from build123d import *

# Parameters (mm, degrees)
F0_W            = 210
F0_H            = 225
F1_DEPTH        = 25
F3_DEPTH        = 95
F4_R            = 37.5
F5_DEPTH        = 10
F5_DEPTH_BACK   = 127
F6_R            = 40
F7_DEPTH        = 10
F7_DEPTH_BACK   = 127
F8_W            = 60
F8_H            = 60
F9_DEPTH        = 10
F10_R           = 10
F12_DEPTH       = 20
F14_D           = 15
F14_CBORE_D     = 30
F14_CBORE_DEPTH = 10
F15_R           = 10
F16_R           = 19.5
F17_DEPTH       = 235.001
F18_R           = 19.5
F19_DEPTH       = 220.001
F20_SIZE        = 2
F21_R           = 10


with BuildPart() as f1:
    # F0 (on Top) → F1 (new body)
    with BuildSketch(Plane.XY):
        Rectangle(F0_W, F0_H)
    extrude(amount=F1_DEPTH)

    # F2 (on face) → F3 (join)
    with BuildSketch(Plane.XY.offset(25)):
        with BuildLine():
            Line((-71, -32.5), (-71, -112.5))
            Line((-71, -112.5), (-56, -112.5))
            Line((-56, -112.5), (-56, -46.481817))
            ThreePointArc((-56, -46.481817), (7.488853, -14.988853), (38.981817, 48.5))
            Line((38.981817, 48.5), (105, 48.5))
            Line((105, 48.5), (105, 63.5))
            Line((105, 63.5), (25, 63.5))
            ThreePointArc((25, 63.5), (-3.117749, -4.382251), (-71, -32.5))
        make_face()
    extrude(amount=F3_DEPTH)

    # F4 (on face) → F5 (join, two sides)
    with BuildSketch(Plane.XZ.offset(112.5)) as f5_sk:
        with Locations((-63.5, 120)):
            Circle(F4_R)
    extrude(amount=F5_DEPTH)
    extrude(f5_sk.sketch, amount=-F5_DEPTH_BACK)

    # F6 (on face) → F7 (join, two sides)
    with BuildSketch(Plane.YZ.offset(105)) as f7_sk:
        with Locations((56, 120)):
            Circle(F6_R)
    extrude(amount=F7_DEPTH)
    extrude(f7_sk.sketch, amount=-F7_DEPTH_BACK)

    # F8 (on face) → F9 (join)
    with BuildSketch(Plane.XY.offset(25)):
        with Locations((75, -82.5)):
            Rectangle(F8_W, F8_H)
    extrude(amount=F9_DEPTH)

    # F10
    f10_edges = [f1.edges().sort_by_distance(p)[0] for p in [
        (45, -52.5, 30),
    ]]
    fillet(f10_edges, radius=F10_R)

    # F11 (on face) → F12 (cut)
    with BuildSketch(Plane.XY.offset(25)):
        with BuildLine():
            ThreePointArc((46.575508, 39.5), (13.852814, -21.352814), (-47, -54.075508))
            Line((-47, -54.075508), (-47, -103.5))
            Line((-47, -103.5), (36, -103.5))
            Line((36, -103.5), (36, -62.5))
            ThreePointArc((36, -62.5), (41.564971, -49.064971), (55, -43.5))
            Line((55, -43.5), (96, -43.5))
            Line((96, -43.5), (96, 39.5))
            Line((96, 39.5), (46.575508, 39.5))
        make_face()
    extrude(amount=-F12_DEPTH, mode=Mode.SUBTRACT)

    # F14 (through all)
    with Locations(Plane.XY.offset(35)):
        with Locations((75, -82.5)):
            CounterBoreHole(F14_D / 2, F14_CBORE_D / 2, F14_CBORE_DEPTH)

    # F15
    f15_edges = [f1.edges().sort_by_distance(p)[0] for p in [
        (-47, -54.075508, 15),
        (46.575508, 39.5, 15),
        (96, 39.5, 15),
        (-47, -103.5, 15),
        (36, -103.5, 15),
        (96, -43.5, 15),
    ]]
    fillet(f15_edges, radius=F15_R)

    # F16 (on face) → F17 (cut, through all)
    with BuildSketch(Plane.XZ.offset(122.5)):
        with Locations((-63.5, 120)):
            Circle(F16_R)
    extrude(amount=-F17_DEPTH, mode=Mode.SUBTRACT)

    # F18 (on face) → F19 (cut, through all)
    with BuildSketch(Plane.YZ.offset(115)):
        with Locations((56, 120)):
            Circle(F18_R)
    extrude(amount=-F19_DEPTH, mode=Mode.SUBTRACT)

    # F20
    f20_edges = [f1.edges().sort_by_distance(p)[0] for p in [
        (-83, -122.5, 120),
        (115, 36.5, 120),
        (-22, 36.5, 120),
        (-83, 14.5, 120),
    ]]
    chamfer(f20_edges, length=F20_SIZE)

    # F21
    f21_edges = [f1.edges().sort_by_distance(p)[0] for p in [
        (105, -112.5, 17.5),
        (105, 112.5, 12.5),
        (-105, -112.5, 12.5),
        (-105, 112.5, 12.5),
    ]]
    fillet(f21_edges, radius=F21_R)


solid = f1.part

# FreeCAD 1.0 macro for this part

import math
import FreeCAD as App
import Part
import Sketcher
Q = App.Units.Quantity


def edges_at(feature, points):
    """Names of the edges that pass closest to the given points."""
    edges = feature.Shape.Edges
    near = lambda p: min(range(len(edges)), key=lambda i: edges[i].distToShape(Part.Vertex(*p))[0])
    return sorted({f"Edge{near(p) + 1}" for p in points})

doc = App.newDocument("Part")
body = doc.addObject("PartDesign::Body", "Body")

sketch1 = body.newObject("Sketcher::SketchObject", "Sketch")
sketch1.AttachmentSupport = (doc.getObject("XY_Plane"), [""])
sketch1.MapMode = "FlatFace"
sketch1.addGeometry([
    Part.LineSegment(App.Vector(-105, 112, 0), App.Vector(-105, -112, 0)),
    Part.LineSegment(App.Vector(-105, -112, 0), App.Vector(105, -112, 0)),
    Part.LineSegment(App.Vector(105, -112, 0), App.Vector(105, 112, 0)),
    Part.LineSegment(App.Vector(105, 112, 0), App.Vector(-105, 112, 0)),
], False)
sketch1.addConstraint([
    Sketcher.Constraint("Coincident", 0, 2, 1, 1),
    Sketcher.Constraint("Coincident", 1, 2, 2, 1),
    Sketcher.Constraint("Coincident", 2, 2, 3, 1),
    Sketcher.Constraint("Coincident", 3, 2, 0, 1),
    Sketcher.Constraint("Vertical", 0),
    Sketcher.Constraint("Horizontal", 1),
    Sketcher.Constraint("Vertical", 2),
    Sketcher.Constraint("Horizontal", 3),
    Sketcher.Constraint("Symmetric", 0, 2, 2, 2, -1, 1),
    Sketcher.Constraint("DistanceX", 1, 1, 1, 2, Q("210 mm")),
    Sketcher.Constraint("DistanceY", 0, 2, 0, 1, Q("225 mm")),
])
pad1 = body.newObject("PartDesign::Pad", "Pad")
pad1.Profile = sketch1
pad1.Length = 25

sketch2 = body.newObject("Sketcher::SketchObject", "Sketch001")
sketch2.AttachmentSupport = (doc.getObject("XY_Plane"), [""])
sketch2.MapMode = "FlatFace"
sketch2.AttachmentOffset = App.Placement(App.Vector(0, 0, 25), App.Rotation())
sketch2.addGeometry([
    Part.LineSegment(App.Vector(-71, -32, 0), App.Vector(-71, -112, 0)),
    Part.LineSegment(App.Vector(-71, -112, 0), App.Vector(-56, -112, 0)),
    Part.LineSegment(App.Vector(-56, -112, 0), App.Vector(-56, -46, 0)),
    Part.ArcOfCircle(Part.Circle(App.Vector(-71, 63, 0), App.Vector(0, 0, 1), 111), math.radians(-82), math.radians(-8)),
    Part.LineSegment(App.Vector(39, 48, 0), App.Vector(105, 48, 0)),
    Part.LineSegment(App.Vector(105, 48, 0), App.Vector(105, 64, 0)),
    Part.LineSegment(App.Vector(105, 64, 0), App.Vector(25, 64, 0)),
    Part.ArcOfCircle(Part.Circle(App.Vector(-71, 63, 0), App.Vector(0, 0, 1), 96), math.radians(-90), math.radians(0)),
], False)
sketch2.addConstraint([
    Sketcher.Constraint("Coincident", 0, 2, 1, 1),
    Sketcher.Constraint("Coincident", 1, 2, 2, 1),
    Sketcher.Constraint("Coincident", 2, 2, 3, 1),
    Sketcher.Constraint("Coincident", 3, 2, 4, 1),
    Sketcher.Constraint("Coincident", 4, 2, 5, 1),
    Sketcher.Constraint("Coincident", 5, 2, 6, 1),
    Sketcher.Constraint("Coincident", 6, 2, 7, 2),
    Sketcher.Constraint("Coincident", 7, 1, 0, 1),
    Sketcher.Constraint("Vertical", 0),
    Sketcher.Constraint("Horizontal", 1),
    Sketcher.Constraint("Vertical", 2),
    Sketcher.Constraint("Horizontal", 4),
    Sketcher.Constraint("Vertical", 5),
    Sketcher.Constraint("Horizontal", 6),
    Sketcher.Constraint("Coincident", 7, 3, 3, 3),
    Sketcher.Constraint("Horizontal", 7, 3, 5, 2),
    Sketcher.Constraint("Vertical", 7, 3, 0, 2),
    Sketcher.Constraint("Equal", 6, 0),
    Sketcher.Constraint("Equal", 4, 2),
    Sketcher.Constraint("Radius", 3, Q("111 mm")),
    Sketcher.Constraint("Radius", 7, Q("96 mm")),
    Sketcher.Constraint("DistanceX", 1, 1, 1, 2, Q("15 mm")),
    Sketcher.Constraint("DistanceX", 6, 2, 6, 1, Q("80 mm")),
    Sketcher.Constraint("DistanceX", 3, 3, -1, 1, Q("71 mm")),
    Sketcher.Constraint("DistanceY", -1, 1, 3, 3, Q("63.5 mm")),
])
pad2 = body.newObject("PartDesign::Pad", "Pad001")
pad2.Profile = sketch2
pad2.Length = 95

sketch3 = body.newObject("Sketcher::SketchObject", "Sketch002")
sketch3.AttachmentSupport = (doc.getObject("XZ_Plane"), [""])
sketch3.MapMode = "FlatFace"
sketch3.AttachmentOffset = App.Placement(App.Vector(0, 0, 112.5), App.Rotation())
sketch3.addGeometry(Part.Circle(App.Vector(-64, 120, 0), App.Vector(0, 0, 1), 38), False)
sketch3.addConstraint([
    Sketcher.Constraint("Diameter", 0, Q("75 mm")),
    Sketcher.Constraint("DistanceY", -1, 1, 0, 3, Q("120 mm")),
    Sketcher.Constraint("DistanceX", 0, 3, -1, 1, Q("63.5 mm")),
])
pad3 = body.newObject("PartDesign::Pad", "Pad002")
pad3.Profile = sketch3
pad3.Type = "TwoLengths"
pad3.Length = 10
pad3.Length2 = 127

sketch4 = body.newObject("Sketcher::SketchObject", "Sketch003")
sketch4.AttachmentSupport = (doc.getObject("YZ_Plane"), [""])
sketch4.MapMode = "FlatFace"
sketch4.AttachmentOffset = App.Placement(App.Vector(0, 0, 105), App.Rotation())
sketch4.addGeometry(Part.Circle(App.Vector(56, 120, 0), App.Vector(0, 0, 1), 40), False)
sketch4.addConstraint([
    Sketcher.Constraint("Diameter", 0, Q("80 mm")),
    Sketcher.Constraint("DistanceX", -1, 1, 0, 3, Q("56 mm")),
    Sketcher.Constraint("DistanceY", -1, 1, 0, 3, Q("120 mm")),
])
pad4 = body.newObject("PartDesign::Pad", "Pad003")
pad4.Profile = sketch4
pad4.Type = "TwoLengths"
pad4.Length = 10
pad4.Length2 = 127

sketch5 = body.newObject("Sketcher::SketchObject", "Sketch004")
sketch5.AttachmentSupport = (doc.getObject("XY_Plane"), [""])
sketch5.MapMode = "FlatFace"
sketch5.AttachmentOffset = App.Placement(App.Vector(0, 0, 25), App.Rotation())
sketch5.addGeometry([
    Part.LineSegment(App.Vector(45, -52, 0), App.Vector(45, -112, 0)),
    Part.LineSegment(App.Vector(45, -112, 0), App.Vector(105, -112, 0)),
    Part.LineSegment(App.Vector(105, -112, 0), App.Vector(105, -52, 0)),
    Part.LineSegment(App.Vector(105, -52, 0), App.Vector(45, -52, 0)),
], False)
sketch5.addConstraint([
    Sketcher.Constraint("Coincident", 0, 2, 1, 1),
    Sketcher.Constraint("Coincident", 1, 2, 2, 1),
    Sketcher.Constraint("Coincident", 2, 2, 3, 1),
    Sketcher.Constraint("Coincident", 3, 2, 0, 1),
    Sketcher.Constraint("Vertical", 0),
    Sketcher.Constraint("Horizontal", 1),
    Sketcher.Constraint("Vertical", 2),
    Sketcher.Constraint("Horizontal", 3),
    Sketcher.Constraint("Equal", 3, 0),
    Sketcher.Constraint("DistanceX", 1, 1, 1, 2, Q("60 mm")),
    Sketcher.Constraint("DistanceX", -1, 1, 0, 2, Q("45 mm")),
    Sketcher.Constraint("DistanceY", 0, 2, -1, 1, Q("112.5 mm")),
])
pad5 = body.newObject("PartDesign::Pad", "Pad004")
pad5.Profile = sketch5
pad5.Length = 10
doc.recompute()

fillet = body.newObject("PartDesign::Fillet", "Fillet")
fillet.Base = (pad5, edges_at(pad5, [(45, -52.5, 30)]))
fillet.Radius = 10

sketch6 = body.newObject("Sketcher::SketchObject", "Sketch005")
sketch6.AttachmentSupport = (doc.getObject("XY_Plane"), [""])
sketch6.MapMode = "FlatFace"
sketch6.AttachmentOffset = App.Placement(App.Vector(0, 0, 25), App.Rotation())
sketch6.addGeometry([
    Part.ArcOfCircle(Part.Circle(App.Vector(-71, 63, 0), App.Vector(0, 0, 1), 120), math.radians(-78), math.radians(-12)),
    Part.LineSegment(App.Vector(-47, -54, 0), App.Vector(-47, -104, 0)),
    Part.LineSegment(App.Vector(-47, -104, 0), App.Vector(36, -104, 0)),
    Part.LineSegment(App.Vector(36, -104, 0), App.Vector(36, -62, 0)),
    Part.ArcOfCircle(Part.Circle(App.Vector(55, -62, 0), App.Vector(0, 0, 1), 19), math.radians(90), math.radians(180)),
    Part.LineSegment(App.Vector(55, -44, 0), App.Vector(96, -44, 0)),
    Part.LineSegment(App.Vector(96, -44, 0), App.Vector(96, 40, 0)),
    Part.LineSegment(App.Vector(96, 40, 0), App.Vector(47, 40, 0)),
], False)
sketch6.addConstraint([
    Sketcher.Constraint("Coincident", 0, 1, 1, 1),
    Sketcher.Constraint("Coincident", 1, 2, 2, 1),
    Sketcher.Constraint("Coincident", 2, 2, 3, 1),
    Sketcher.Constraint("Tangent", 3, 2, 4, 2),
    Sketcher.Constraint("Tangent", 4, 1, 5, 1),
    Sketcher.Constraint("Coincident", 5, 2, 6, 1),
    Sketcher.Constraint("Coincident", 6, 2, 7, 1),
    Sketcher.Constraint("Coincident", 7, 2, 0, 2),
    Sketcher.Constraint("Vertical", 1),
    Sketcher.Constraint("Horizontal", 2),
    Sketcher.Constraint("Vertical", 3),
    Sketcher.Constraint("Horizontal", 5),
    Sketcher.Constraint("Vertical", 6),
    Sketcher.Constraint("Horizontal", 7),
    Sketcher.Constraint("Equal", 7, 1),
    Sketcher.Constraint("Equal", 5, 3),
    Sketcher.Constraint("Equal", 2, 6),
    Sketcher.Constraint("Radius", 0, Q("120 mm")),
    Sketcher.Constraint("Radius", 4, Q("18.999999 mm")),
    Sketcher.Constraint("DistanceX", 2, 1, 2, 2, Q("83 mm")),
    Sketcher.Constraint("DistanceX", 5, 1, 5, 2, Q("41 mm")),
    Sketcher.Constraint("DistanceX", 0, 3, -1, 1, Q("71 mm")),
    Sketcher.Constraint("DistanceX", -1, 1, 4, 3, Q("54.999999 mm")),
    Sketcher.Constraint("DistanceY", -1, 1, 0, 3, Q("63.5 mm")),
])
pocket1 = body.newObject("PartDesign::Pocket", "Pocket")
pocket1.Profile = sketch6
pocket1.Length = 20

sketch7 = body.newObject("Sketcher::SketchObject", "Sketch006")
sketch7.AttachmentSupport = (doc.getObject("XY_Plane"), [""])
sketch7.MapMode = "FlatFace"
sketch7.AttachmentOffset = App.Placement(App.Vector(0, 0, 35), App.Rotation())
sketch7.addGeometry(Part.Circle(App.Vector(75, -82, 0), App.Vector(0, 0, 1), 8), False)
sketch7.addConstraint([
    Sketcher.Constraint("Diameter", 0, Q("15 mm")),
    Sketcher.Constraint("DistanceX", -1, 1, 0, 3, Q("75 mm")),
    Sketcher.Constraint("DistanceY", 0, 3, -1, 1, Q("82.5 mm")),
])
doc.recompute()
hole = body.newObject("PartDesign::Hole", "Hole")
hole.Profile = sketch7
hole.ThreadType = "None"
hole.Diameter = 15
hole.DepthType = "ThroughAll"
hole.HoleCutType = "Counterbore"
hole.HoleCutDiameter = 30
hole.HoleCutDepth = 10
doc.recompute()

fillet2 = body.newObject("PartDesign::Fillet", "Fillet001")
fillet2.Base = (hole, edges_at(hole, [
    (-47, -54.076, 15),
    (46.576, 39.5, 15),
    (96, 39.5, 15),
    (-47, -103.5, 15),
    (36, -103.5, 15),
    (96, -43.5, 15),
]))
fillet2.Radius = 10

sketch8 = body.newObject("Sketcher::SketchObject", "Sketch007")
sketch8.AttachmentSupport = (doc.getObject("XZ_Plane"), [""])
sketch8.MapMode = "FlatFace"
sketch8.AttachmentOffset = App.Placement(App.Vector(0, 0, 122.5), App.Rotation())
sketch8.addGeometry(Part.Circle(App.Vector(-64, 120, 0), App.Vector(0, 0, 1), 20), False)
sketch8.addConstraint([
    Sketcher.Constraint("Diameter", 0, Q("39 mm")),
    Sketcher.Constraint("DistanceY", -1, 1, 0, 3, Q("120 mm")),
    Sketcher.Constraint("DistanceX", 0, 3, -1, 1, Q("63.5 mm")),
])
pocket2 = body.newObject("PartDesign::Pocket", "Pocket001")
pocket2.Profile = sketch8
pocket2.Type = "ThroughAll"

sketch9 = body.newObject("Sketcher::SketchObject", "Sketch008")
sketch9.AttachmentSupport = (doc.getObject("YZ_Plane"), [""])
sketch9.MapMode = "FlatFace"
sketch9.AttachmentOffset = App.Placement(App.Vector(0, 0, 115), App.Rotation())
sketch9.addGeometry(Part.Circle(App.Vector(56, 120, 0), App.Vector(0, 0, 1), 20), False)
sketch9.addConstraint([
    Sketcher.Constraint("Diameter", 0, Q("39 mm")),
    Sketcher.Constraint("DistanceX", -1, 1, 0, 3, Q("56 mm")),
    Sketcher.Constraint("DistanceY", -1, 1, 0, 3, Q("120 mm")),
])
pocket3 = body.newObject("PartDesign::Pocket", "Pocket002")
pocket3.Profile = sketch9
pocket3.Type = "ThroughAll"
doc.recompute()

chamfer = body.newObject("PartDesign::Chamfer", "Chamfer")
chamfer.Base = (pocket3, edges_at(pocket3, [
    (-83, -122.5, 120),
    (115, 36.5, 120),
    (-22, 36.5, 120),
    (-83, 14.5, 120),
]))
chamfer.Size = 2
doc.recompute()

fillet3 = body.newObject("PartDesign::Fillet", "Fillet002")
fillet3.Base = (chamfer, edges_at(chamfer, [
    (105, -112.5, 17.5),
    (105, 112.5, 12.5),
    (-105, -112.5, 12.5),
    (-105, 112.5, 12.5),
]))
fillet3.Radius = 10

doc.recompute()
